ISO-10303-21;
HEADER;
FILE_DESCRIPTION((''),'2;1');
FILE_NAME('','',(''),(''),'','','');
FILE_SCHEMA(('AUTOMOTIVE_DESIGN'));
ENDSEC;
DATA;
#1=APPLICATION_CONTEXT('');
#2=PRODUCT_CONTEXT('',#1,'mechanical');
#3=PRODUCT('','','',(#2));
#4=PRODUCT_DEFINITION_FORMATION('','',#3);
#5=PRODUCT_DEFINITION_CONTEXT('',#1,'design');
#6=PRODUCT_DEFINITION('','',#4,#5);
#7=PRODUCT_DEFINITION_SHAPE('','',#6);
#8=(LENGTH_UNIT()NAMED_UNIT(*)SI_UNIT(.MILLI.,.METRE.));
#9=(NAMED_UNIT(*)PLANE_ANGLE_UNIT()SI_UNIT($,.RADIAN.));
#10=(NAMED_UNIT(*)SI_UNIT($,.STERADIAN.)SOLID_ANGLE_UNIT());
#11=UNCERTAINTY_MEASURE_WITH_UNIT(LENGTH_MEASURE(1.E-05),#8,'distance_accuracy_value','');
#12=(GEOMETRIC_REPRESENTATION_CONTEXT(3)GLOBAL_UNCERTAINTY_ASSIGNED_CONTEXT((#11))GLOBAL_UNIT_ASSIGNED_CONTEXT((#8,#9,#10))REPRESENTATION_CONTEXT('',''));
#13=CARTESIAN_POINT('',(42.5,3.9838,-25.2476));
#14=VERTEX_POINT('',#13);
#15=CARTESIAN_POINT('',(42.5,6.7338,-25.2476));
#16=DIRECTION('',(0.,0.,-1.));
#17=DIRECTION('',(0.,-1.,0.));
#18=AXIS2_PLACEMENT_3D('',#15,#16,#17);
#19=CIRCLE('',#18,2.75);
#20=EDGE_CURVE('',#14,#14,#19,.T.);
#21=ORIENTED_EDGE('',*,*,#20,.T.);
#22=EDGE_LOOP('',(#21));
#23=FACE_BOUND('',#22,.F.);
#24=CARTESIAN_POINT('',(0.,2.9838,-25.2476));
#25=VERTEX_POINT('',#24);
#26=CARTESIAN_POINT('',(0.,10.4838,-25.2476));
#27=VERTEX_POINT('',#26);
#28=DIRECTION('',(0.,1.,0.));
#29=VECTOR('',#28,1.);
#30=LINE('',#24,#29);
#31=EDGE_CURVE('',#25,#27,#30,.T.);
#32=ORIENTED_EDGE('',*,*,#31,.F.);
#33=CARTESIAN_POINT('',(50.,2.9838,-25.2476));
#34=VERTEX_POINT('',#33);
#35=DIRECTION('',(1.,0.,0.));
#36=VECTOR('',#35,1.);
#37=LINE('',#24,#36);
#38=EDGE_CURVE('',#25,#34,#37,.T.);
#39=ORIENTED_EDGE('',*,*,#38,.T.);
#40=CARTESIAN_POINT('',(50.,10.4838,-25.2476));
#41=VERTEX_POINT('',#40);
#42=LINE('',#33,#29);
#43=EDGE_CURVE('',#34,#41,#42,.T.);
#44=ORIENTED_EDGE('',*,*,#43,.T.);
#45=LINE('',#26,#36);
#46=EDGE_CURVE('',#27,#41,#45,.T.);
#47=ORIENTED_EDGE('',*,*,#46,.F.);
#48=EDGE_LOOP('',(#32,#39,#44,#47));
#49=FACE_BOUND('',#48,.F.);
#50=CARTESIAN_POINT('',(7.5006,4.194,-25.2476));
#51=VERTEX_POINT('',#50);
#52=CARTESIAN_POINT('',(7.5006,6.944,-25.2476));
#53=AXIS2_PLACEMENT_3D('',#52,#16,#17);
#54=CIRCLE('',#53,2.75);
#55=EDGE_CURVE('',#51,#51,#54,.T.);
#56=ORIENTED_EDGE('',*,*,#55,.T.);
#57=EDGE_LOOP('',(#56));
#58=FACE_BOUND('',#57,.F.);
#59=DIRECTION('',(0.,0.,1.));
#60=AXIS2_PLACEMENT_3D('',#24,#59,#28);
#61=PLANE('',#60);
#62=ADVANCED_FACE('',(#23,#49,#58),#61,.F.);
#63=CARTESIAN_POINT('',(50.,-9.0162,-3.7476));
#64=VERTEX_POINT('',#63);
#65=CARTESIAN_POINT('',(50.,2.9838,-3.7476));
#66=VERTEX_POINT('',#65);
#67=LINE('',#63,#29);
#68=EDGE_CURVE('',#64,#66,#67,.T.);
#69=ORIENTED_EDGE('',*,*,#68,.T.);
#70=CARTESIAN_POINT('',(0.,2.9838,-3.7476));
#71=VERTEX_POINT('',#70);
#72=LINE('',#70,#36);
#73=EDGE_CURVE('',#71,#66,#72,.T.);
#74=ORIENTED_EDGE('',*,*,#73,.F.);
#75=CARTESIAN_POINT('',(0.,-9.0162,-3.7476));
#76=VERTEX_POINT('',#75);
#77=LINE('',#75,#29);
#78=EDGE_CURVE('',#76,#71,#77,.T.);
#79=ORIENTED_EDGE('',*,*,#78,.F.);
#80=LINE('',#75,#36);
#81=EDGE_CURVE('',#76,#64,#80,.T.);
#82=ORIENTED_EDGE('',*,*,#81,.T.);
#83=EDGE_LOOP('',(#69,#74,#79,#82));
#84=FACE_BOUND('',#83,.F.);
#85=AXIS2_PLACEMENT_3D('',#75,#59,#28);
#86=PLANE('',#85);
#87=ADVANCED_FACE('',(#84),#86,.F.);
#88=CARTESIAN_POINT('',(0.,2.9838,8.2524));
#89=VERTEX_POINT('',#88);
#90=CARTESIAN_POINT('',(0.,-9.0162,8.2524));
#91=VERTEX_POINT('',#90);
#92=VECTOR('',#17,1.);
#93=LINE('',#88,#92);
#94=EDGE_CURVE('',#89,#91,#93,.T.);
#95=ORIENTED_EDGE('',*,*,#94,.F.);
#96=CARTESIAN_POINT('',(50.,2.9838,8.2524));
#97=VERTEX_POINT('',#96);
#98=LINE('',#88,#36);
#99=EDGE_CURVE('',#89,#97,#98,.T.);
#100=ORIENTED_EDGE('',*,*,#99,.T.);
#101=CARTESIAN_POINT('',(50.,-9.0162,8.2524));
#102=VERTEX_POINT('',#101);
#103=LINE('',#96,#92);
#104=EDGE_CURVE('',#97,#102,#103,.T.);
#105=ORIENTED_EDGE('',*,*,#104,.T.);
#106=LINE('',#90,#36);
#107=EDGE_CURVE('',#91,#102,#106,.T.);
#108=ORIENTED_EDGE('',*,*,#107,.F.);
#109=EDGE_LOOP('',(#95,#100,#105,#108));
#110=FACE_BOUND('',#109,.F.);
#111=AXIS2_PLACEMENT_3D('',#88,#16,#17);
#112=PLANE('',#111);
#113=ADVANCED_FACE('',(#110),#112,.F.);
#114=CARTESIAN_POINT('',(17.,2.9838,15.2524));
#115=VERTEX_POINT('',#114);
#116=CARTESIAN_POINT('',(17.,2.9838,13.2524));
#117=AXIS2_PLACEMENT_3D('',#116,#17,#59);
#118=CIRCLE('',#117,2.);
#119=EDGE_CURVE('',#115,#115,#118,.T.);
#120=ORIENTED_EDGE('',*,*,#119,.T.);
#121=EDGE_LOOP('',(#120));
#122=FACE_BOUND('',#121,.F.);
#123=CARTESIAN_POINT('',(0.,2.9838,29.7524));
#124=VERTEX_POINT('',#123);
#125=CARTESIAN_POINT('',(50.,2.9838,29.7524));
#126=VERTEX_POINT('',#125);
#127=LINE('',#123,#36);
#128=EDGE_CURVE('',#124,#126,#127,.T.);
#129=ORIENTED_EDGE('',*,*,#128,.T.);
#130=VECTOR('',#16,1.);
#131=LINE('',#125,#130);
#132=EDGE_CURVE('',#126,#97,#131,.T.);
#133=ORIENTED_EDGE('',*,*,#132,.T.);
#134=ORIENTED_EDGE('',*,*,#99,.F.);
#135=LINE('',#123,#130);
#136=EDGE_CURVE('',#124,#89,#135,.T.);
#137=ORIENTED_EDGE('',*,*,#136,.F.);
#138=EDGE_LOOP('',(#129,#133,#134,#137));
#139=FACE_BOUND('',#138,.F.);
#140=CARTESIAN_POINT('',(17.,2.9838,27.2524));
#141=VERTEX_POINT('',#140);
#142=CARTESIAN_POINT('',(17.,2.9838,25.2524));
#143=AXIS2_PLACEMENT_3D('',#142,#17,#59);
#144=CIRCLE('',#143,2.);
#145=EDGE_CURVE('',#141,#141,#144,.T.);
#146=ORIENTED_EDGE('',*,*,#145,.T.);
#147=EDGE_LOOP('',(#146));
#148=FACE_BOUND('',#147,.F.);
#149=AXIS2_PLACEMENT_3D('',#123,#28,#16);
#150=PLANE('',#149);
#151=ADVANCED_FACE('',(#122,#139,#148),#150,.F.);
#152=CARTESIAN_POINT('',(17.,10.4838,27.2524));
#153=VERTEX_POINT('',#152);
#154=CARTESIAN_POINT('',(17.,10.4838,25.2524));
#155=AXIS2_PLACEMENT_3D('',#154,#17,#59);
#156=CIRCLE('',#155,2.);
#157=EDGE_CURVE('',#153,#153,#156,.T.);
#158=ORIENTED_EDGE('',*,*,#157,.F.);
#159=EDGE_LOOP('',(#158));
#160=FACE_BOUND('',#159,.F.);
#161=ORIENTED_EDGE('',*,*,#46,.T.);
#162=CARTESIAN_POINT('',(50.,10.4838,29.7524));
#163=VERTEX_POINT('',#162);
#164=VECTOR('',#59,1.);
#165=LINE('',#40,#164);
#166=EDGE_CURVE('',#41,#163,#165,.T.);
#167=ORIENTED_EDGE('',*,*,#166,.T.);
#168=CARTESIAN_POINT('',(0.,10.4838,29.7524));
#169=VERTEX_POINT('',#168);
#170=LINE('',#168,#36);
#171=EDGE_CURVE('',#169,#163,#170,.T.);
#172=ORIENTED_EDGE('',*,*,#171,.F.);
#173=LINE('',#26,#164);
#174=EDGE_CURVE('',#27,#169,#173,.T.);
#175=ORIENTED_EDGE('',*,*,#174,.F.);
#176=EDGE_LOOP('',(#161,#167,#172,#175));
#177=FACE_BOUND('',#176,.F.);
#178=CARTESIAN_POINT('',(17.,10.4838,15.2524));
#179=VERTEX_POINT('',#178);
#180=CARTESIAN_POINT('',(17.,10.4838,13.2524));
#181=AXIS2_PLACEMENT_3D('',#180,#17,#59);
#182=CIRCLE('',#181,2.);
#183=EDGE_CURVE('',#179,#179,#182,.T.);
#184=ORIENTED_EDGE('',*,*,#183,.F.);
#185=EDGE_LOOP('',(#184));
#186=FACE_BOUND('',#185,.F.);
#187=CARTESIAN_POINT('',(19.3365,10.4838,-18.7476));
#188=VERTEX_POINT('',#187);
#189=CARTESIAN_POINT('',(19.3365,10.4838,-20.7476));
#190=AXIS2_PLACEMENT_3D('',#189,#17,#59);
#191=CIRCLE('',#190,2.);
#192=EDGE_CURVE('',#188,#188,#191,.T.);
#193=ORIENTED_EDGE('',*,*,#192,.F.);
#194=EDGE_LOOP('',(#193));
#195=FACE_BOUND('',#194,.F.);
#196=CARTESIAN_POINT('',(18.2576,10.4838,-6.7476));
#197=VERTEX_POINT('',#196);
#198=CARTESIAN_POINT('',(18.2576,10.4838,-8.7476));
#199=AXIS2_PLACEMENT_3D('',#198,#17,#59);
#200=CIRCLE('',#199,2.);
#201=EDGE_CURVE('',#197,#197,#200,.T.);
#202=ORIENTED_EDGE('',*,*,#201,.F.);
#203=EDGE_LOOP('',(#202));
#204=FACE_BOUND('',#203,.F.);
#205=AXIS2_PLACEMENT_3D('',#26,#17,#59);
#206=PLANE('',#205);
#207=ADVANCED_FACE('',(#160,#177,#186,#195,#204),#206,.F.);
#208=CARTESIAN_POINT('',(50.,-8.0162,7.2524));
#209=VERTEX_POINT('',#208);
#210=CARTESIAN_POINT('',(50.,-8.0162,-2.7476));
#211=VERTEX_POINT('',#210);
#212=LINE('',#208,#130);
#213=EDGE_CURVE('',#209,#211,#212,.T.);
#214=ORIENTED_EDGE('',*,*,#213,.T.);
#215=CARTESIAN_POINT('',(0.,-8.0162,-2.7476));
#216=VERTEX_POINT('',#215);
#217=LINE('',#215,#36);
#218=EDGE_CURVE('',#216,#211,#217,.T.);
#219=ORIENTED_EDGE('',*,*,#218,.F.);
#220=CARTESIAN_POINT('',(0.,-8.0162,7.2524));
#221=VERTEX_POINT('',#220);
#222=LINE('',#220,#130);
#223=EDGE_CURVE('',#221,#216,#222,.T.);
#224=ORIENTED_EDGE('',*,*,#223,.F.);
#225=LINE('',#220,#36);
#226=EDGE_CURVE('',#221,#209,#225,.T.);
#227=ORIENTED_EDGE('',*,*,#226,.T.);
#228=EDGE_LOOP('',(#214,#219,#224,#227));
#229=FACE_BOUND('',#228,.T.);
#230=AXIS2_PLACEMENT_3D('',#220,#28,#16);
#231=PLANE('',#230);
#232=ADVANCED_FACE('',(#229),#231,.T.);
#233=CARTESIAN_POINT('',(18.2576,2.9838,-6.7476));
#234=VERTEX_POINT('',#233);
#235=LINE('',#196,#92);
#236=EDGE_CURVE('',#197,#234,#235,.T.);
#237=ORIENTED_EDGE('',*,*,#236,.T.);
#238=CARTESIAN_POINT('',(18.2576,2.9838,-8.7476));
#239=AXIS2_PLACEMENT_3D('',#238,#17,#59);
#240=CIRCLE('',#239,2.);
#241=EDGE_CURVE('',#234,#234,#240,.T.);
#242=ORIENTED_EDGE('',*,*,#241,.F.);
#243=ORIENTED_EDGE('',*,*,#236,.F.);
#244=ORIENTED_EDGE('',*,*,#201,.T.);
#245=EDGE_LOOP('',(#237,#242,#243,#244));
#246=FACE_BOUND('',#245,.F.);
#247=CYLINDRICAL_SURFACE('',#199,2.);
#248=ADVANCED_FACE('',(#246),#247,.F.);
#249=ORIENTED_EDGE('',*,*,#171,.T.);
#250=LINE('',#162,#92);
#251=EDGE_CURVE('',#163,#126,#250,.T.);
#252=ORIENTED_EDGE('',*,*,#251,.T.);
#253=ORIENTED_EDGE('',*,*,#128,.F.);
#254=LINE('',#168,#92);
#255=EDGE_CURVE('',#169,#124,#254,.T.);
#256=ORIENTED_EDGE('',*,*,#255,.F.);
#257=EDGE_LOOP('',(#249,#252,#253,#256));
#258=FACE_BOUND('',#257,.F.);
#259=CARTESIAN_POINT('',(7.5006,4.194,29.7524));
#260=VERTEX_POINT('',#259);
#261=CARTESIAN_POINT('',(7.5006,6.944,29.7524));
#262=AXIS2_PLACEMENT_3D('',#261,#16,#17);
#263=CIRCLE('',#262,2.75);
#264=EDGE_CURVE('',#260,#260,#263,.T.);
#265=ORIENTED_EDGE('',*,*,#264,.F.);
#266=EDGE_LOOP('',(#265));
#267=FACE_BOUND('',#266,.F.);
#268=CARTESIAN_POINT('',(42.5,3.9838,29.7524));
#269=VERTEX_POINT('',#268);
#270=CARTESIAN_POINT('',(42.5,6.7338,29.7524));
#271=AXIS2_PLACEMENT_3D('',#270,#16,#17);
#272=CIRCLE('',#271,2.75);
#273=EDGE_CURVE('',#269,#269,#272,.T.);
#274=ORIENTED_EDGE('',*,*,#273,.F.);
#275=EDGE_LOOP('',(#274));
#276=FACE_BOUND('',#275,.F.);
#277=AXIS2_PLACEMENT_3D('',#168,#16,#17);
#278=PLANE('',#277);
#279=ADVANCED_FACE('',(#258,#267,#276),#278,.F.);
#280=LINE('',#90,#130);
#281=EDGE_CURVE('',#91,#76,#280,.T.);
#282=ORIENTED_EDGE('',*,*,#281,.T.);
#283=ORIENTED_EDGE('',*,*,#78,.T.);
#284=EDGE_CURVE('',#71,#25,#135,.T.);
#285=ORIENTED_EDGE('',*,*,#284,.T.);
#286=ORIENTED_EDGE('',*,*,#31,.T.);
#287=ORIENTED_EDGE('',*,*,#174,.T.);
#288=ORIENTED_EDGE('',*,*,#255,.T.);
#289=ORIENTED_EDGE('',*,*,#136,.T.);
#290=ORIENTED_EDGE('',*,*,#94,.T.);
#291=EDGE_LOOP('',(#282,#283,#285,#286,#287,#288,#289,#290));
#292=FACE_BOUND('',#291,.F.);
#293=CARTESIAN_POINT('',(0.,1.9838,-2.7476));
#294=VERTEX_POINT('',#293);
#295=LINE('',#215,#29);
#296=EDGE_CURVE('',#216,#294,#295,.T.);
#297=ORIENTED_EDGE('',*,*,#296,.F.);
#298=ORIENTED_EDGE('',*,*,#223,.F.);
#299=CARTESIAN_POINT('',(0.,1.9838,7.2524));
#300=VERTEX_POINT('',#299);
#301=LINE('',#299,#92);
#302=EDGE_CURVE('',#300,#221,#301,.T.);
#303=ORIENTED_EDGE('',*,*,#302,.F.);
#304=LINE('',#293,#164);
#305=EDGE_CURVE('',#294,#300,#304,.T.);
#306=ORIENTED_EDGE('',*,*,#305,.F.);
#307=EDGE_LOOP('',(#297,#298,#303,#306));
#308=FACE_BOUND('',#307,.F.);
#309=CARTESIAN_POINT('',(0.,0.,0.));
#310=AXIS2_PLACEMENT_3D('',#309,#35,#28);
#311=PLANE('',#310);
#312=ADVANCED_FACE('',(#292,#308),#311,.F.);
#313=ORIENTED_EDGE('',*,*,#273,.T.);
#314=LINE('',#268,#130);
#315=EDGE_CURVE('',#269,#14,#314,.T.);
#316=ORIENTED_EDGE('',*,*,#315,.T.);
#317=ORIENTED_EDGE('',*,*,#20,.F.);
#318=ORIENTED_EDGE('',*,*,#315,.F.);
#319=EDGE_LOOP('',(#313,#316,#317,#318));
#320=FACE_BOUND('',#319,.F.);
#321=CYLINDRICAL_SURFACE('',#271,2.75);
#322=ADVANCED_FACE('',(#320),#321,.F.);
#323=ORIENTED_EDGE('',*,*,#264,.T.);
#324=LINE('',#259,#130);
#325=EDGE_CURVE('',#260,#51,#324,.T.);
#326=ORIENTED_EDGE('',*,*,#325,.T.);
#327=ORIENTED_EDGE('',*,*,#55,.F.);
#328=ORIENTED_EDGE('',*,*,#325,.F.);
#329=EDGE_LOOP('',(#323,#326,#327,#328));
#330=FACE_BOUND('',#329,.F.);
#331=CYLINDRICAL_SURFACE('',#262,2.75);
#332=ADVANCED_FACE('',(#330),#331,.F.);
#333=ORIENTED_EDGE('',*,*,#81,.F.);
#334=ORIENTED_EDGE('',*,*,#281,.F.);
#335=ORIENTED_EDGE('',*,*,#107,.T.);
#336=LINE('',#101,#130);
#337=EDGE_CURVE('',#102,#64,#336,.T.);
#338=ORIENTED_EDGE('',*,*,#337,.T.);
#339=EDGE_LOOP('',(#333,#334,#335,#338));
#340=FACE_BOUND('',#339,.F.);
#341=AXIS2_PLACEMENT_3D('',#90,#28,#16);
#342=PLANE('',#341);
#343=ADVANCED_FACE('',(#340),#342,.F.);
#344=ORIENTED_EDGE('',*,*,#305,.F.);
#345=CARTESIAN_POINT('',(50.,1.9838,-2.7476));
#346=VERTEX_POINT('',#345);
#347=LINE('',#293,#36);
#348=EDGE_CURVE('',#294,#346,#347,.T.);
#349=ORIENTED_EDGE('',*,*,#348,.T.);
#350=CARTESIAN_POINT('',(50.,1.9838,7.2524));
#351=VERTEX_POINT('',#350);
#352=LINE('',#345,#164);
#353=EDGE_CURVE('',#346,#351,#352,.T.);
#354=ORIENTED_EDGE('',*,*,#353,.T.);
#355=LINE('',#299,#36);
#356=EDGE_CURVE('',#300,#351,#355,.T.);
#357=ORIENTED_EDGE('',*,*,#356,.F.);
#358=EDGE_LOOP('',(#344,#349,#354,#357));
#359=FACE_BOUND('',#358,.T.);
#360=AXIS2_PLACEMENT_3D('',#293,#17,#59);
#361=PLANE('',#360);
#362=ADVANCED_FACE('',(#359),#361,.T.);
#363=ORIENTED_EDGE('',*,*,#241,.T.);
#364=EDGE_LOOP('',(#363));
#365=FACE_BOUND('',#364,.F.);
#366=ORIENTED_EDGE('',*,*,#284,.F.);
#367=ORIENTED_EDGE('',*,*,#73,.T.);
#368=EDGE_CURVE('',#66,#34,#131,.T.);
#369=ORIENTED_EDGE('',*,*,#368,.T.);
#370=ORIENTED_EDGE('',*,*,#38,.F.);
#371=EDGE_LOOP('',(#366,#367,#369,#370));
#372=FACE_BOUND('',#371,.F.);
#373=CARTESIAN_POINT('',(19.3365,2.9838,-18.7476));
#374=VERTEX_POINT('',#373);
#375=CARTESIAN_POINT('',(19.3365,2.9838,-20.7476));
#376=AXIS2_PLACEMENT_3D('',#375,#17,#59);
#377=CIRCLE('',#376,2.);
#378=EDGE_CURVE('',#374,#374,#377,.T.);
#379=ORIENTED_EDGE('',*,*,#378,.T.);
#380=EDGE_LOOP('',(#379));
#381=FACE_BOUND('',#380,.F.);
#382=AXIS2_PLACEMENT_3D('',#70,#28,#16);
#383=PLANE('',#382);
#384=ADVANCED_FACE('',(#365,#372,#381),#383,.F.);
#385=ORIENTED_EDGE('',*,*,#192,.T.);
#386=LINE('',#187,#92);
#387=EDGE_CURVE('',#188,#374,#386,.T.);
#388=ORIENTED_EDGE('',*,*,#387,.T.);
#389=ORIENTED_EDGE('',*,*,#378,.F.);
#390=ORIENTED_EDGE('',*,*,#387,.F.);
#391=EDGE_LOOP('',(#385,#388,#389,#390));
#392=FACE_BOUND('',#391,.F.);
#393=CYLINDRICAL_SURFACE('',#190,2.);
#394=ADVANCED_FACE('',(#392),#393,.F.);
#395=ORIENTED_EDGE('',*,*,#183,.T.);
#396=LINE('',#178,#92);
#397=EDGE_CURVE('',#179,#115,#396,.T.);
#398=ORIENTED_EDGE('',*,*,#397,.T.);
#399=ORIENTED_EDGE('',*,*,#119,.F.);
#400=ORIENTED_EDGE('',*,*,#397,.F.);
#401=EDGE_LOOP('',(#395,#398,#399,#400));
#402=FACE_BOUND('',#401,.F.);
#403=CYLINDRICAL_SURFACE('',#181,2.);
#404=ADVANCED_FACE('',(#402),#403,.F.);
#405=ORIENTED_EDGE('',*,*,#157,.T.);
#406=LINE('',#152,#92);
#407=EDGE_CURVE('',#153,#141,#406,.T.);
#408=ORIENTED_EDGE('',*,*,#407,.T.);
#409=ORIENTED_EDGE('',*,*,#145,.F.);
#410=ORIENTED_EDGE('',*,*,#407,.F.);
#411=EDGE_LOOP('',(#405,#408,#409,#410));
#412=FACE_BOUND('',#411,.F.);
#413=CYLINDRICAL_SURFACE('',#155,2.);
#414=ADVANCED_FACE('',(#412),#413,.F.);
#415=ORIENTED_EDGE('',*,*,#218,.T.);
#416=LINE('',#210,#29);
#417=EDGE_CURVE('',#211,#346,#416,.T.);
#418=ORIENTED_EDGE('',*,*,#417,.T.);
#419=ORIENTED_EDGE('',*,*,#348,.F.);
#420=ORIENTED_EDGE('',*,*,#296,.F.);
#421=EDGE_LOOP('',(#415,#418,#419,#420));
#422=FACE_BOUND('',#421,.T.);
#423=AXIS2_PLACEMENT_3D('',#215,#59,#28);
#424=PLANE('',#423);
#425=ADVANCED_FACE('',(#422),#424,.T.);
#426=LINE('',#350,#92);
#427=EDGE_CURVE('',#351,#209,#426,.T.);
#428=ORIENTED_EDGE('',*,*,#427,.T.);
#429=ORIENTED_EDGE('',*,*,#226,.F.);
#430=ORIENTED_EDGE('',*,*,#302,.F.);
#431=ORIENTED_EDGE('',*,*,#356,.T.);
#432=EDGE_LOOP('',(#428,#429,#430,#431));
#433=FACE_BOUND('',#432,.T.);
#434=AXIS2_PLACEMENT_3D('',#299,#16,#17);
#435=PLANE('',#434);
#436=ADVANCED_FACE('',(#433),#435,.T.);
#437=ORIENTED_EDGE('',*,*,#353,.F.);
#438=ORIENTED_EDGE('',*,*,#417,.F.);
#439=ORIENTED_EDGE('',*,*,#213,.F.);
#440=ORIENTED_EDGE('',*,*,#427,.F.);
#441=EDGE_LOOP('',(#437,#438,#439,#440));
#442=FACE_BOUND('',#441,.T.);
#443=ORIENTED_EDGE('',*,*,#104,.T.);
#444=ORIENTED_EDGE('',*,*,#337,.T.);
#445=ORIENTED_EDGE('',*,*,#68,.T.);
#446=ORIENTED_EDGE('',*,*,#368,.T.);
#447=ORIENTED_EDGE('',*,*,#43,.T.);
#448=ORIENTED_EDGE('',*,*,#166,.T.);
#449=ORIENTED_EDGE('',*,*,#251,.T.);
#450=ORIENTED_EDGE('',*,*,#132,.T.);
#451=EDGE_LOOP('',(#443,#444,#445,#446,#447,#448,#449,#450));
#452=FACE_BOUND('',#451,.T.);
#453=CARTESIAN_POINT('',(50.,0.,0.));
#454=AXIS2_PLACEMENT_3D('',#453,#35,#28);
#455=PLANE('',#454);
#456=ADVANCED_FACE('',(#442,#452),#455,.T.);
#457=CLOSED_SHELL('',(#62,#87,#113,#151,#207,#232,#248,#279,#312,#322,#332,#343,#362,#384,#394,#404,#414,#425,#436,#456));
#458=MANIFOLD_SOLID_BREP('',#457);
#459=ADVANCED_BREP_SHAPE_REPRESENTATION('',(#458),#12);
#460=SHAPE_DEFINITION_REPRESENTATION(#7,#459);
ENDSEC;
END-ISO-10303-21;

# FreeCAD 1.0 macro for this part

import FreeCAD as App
import Part
import Sketcher
from FreeCAD import Vector
Q = App.Units.Quantity


def add_polygon(sketch, points):
    """Adds a closed chain of lines whose ends are joined by coincident constraints."""
    first, n = sketch.GeometryCount, len(points)
    for a, b in zip(points, points[1:] + points[:1]):
        sketch.addGeometry(Part.LineSegment(App.Vector(*a, 0), App.Vector(*b, 0)), False)
    for i in range(n):
        sketch.addConstraint(Sketcher.Constraint("Coincident", first + i, 2, first + (i + 1) % n, 1))

doc = App.newDocument("Part")
params = doc.addObject("Spreadsheet::Sheet", "Params")
for row, (alias, value) in enumerate([
    ("sketch1_width", "12 mm"),
    ("sketch1_width2", "10 mm"),
    ("sketch1_height", "55 mm"),
    ("sketch1_width3", "7.5 mm"),
    ("pad1_length", "50 mm"),
    ("sketch2_diameter", "5.5 mm"),
    ("hole_diameter", "5.5 mm"),
    ("sketch3_diameter", "4 mm"),
    ("hole2_diameter", "4 mm"),
], start=1):
    params.set(f"A{row}", alias)
    params.set(f"B{row}", "=" + value)
    params.setAlias(f"B{row}", alias)

body = doc.addObject("PartDesign::Body", "Body")

# Sketch on YZ plane
sketch1 = doc.addObject("Sketcher::SketchObject", "Sketch")
body.addObject(sketch1)
sketch1.AttachmentSupport = (doc.YZ_Plane, [""])
sketch1.MapMode = "FlatFace"
add_polygon(sketch1, [(-9, -4), (3, -4), (3, -25), (10, -25), (10, 30), (3, 30), (3, 8), (-9, 8)])  # lines 0-7
add_polygon(sketch1, [(-8, 7), (2, 7), (2, -3), (-8, -3)])  # lines 8-11
sketch1.addConstraint([
    Sketcher.Constraint("Horizontal", 0),
    Sketcher.Constraint("Vertical", 1),
    Sketcher.Constraint("Horizontal", 2),
    Sketcher.Constraint("Vertical", 3),
    Sketcher.Constraint("Horizontal", 4),
    Sketcher.Constraint("Vertical", 5),
    Sketcher.Constraint("Horizontal", 6),
    Sketcher.Constraint("Vertical", 7),
    Sketcher.Constraint("Horizontal", 8),
    Sketcher.Constraint("Vertical", 9),
    Sketcher.Constraint("Horizontal", 10),
    Sketcher.Constraint("Vertical", 11),
    Sketcher.Constraint("Vertical", 1, 2, 4, 2),
    Sketcher.Constraint("Equal", 1, 5),
    Sketcher.Constraint("Equal", 6, 7),
    Sketcher.Constraint("Equal", 10, 9),
    Sketcher.Constraint("DistanceX", 0, 1, 0, 2, Q("12 mm")),
    Sketcher.Constraint("DistanceX", 8, 1, 8, 2, Q("10 mm")),
    Sketcher.Constraint("DistanceY", 3, 1, 3, 2, Q("55 mm")),
    Sketcher.Constraint("DistanceX", 2, 1, 2, 2, Q("7.5 mm")),
    Sketcher.Constraint("DistanceX", 8, 2, 5, 2, Q("1 mm")),
    Sketcher.Constraint("DistanceY", 8, 2, 5, 2, Q("1 mm")),
    Sketcher.Constraint("DistanceX", -1, 1, 0, 2, Q("2.9838 mm")),
    Sketcher.Constraint("DistanceY", 0, 2, -1, 1, Q("3.7476 mm")),
])
sketch1.setExpression("Constraints[28]", "Params.sketch1_width")
sketch1.setExpression("Constraints[29]", "Params.sketch1_width2")
sketch1.setExpression("Constraints[30]", "Params.sketch1_height")
sketch1.setExpression("Constraints[31]", "Params.sketch1_width3")
pad1 = doc.addObject("PartDesign::Pad", "Pad")
body.addObject(pad1)
pad1.Profile = sketch1
pad1.setExpression("Length", "Params.pad1_length")

# Sketch on XY plane
sketch2 = doc.addObject("Sketcher::SketchObject", "Sketch001")
body.addObject(sketch2)
sketch2.AttachmentSupport = (doc.XY_Plane, [""])
sketch2.MapMode = "FlatFace"
sketch2.AttachmentOffset = App.Placement(Vector(0, 0, 29.7524), App.Rotation())
sketch2.addGeometry([
    Part.Circle(Vector(42.5, 6.7, 0), Vector(0, 0, 1), 2.8),
    Part.Circle(Vector(7.5, 6.9, 0), Vector(0, 0, 1), 2.8),
], False)
sketch2.addConstraint([
    Sketcher.Constraint("Equal", 0, 1),
    Sketcher.Constraint("Diameter", 0, Q("5.5 mm")),
    Sketcher.Constraint("DistanceX", -1, 1, 0, 3, Q("42.5 mm")),
    Sketcher.Constraint("DistanceY", -1, 1, 1, 3, Q("6.944 mm")),
    Sketcher.Constraint("DistanceY", -1, 1, 0, 3, Q("6.7338 mm")),
    Sketcher.Constraint("DistanceX", -1, 1, 1, 3, Q("7.5006 mm")),
])
sketch2.setExpression("Constraints[1]", "Params.sketch2_diameter")
doc.recompute()
hole = doc.addObject("PartDesign::Hole", "Hole")
body.addObject(hole)
hole.Profile = sketch2
hole.ThreadType = "None"
hole.setExpression("Diameter", "Params.hole_diameter")
hole.DepthType = "ThroughAll"

# Sketch on XZ plane
sketch3 = doc.addObject("Sketcher::SketchObject", "Sketch002")
body.addObject(sketch3)
sketch3.AttachmentSupport = (doc.XZ_Plane, [""])
sketch3.MapMode = "FlatFace"
sketch3.AttachmentOffset = App.Placement(Vector(0, 0, -10.4838), App.Rotation())
sketch3.addGeometry([
    Part.Circle(Vector(19.3, -20.7, 0), Vector(0, 0, 1), 2),
    Part.Circle(Vector(18.3, -8.7, 0), Vector(0, 0, 1), 2),
    Part.Circle(Vector(17, 13.3, 0), Vector(0, 0, 1), 2),
    Part.Circle(Vector(17, 25.3, 0), Vector(0, 0, 1), 2),
], False)
sketch3.addConstraint([
    Sketcher.Constraint("Equal", 0, 1),
    Sketcher.Constraint("Equal", 1, 2),
    Sketcher.Constraint("Equal", 2, 3),
    Sketcher.Constraint("Vertical", 2, 3, 3, 3),
    Sketcher.Constraint("Diameter", 0, Q("4 mm")),
    Sketcher.Constraint("DistanceX", -1, 1, 2, 3, Q("17 mm")),
    Sketcher.Constraint("DistanceY", 0, 3, 1, 3, Q("12 mm")),
    Sketcher.Constraint("DistanceY", 1, 3, 2, 3, Q("22 mm")),
    Sketcher.Constraint("DistanceY", 2, 3, 3, 3, Q("12 mm")),
    Sketcher.Constraint("DistanceX", 1, 3, 0, 3, Q("1.079 mm")),
    Sketcher.Constraint("DistanceX", -1, 1, 0, 3, Q("19.3365 mm")),
    Sketcher.Constraint("DistanceY", 0, 3, -1, 1, Q("20.7476 mm")),
])
sketch3.setExpression("Constraints[4]", "Params.sketch3_diameter")
doc.recompute()
hole2 = doc.addObject("PartDesign::Hole", "Hole001")
body.addObject(hole2)
hole2.Profile = sketch3
hole2.ThreadType = "None"
hole2.setExpression("Diameter", "Params.hole2_diameter")
hole2.DepthType = "ThroughAll"
hole2.Reversed = True

doc.recompute()
